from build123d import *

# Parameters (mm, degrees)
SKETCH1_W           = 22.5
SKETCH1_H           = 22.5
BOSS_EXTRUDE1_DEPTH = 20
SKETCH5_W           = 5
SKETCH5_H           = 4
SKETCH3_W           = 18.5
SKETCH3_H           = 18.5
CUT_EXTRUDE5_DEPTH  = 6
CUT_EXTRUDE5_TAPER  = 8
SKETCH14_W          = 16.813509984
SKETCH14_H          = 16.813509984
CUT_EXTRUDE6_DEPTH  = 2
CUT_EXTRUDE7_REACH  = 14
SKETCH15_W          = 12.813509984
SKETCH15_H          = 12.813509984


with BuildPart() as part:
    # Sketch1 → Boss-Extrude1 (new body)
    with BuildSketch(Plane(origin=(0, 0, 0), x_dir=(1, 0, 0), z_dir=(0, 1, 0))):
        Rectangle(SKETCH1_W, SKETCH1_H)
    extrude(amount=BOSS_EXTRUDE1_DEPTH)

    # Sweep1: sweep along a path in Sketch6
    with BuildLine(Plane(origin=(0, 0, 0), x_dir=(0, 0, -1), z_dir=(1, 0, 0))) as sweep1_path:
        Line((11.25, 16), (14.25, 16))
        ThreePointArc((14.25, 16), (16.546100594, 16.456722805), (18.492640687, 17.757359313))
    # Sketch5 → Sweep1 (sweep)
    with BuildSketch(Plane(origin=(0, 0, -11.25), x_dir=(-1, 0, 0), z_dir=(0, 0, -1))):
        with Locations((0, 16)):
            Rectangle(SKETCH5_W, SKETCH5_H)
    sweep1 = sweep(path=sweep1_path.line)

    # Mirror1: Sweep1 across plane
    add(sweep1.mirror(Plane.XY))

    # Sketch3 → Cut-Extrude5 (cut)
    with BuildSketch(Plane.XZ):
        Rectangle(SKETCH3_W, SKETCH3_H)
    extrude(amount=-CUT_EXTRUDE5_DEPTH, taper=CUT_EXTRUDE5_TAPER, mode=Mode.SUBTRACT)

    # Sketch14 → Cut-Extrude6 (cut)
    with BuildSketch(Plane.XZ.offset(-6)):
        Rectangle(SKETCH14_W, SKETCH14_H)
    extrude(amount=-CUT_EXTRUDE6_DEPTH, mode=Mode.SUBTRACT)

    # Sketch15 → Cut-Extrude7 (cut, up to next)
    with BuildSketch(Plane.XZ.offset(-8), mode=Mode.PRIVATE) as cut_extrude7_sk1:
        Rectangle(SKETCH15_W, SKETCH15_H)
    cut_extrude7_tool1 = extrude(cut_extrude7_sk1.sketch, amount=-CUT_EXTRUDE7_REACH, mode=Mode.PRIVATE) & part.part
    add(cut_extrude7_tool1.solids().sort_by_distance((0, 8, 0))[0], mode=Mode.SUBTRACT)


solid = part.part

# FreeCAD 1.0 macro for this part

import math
import FreeCAD as App
import Part
import Sketcher
from FreeCAD import Vector
Q = App.Units.Quantity


def add_polygon(sketch, points):
    """Adds a closed chain of lines whose ends are joined by coincident constraints."""
    first, n = sketch.GeometryCount, len(points)
    for a, b in zip(points, points[1:] + points[:1]):
        sketch.addGeometry(Part.LineSegment(App.Vector(*a, 0), App.Vector(*b, 0)), False)
    for i in range(n):
        sketch.addConstraint(Sketcher.Constraint("Coincident", first + i, 2, first + (i + 1) % n, 1))

doc = App.newDocument("Part")
body = doc.addObject("PartDesign::Body", "Body")

# Sketch on XZ plane
sketch1 = body.newObject("Sketcher::SketchObject", "Sketch")
sketch1.AttachmentSupport = (doc.getObject("XZ_Plane"), [""])
sketch1.MapMode = "FlatFace"
add_polygon(sketch1, [(-11.25, -11.25), (-11.25, 11.25), (11.25, 11.25), (11.25, -11.25)])  # lines 0-3
sketch1.addConstraint([
    Sketcher.Constraint("Vertical", 0),
    Sketcher.Constraint("Horizontal", 1),
    Sketcher.Constraint("Vertical", 2),
    Sketcher.Constraint("Horizontal", 3),
    Sketcher.Constraint("Symmetric", 0, 2, 2, 2, -1, 1),
    Sketcher.Constraint("Equal", 3, 0),
    Sketcher.Constraint("DistanceX", 1, 1, 1, 2, Q("22.5 mm")),
])
pad1 = body.newObject("PartDesign::Pad", "Pad")
pad1.Profile = sketch1
pad1.Length = 20
pad1.Reversed = True

# Sketch on XY plane
sketch2 = body.newObject("Sketcher::SketchObject", "Sketch001")
sketch2.AttachmentSupport = (doc.getObject("XY_Plane"), [""])
sketch2.MapMode = "FlatFace"
sketch2.AttachmentOffset = App.Placement(Vector(0, 0, -11.25), App.Rotation())
add_polygon(sketch2, [(2.5, 18), (2.5, 14), (-2.5, 14), (-2.5, 18)])  # lines 0-3
sketch2.addConstraint([
    Sketcher.Constraint("Vertical", 0),
    Sketcher.Constraint("Horizontal", 1),
    Sketcher.Constraint("Vertical", 2),
    Sketcher.Constraint("Horizontal", 3),
    Sketcher.Constraint("DistanceX", 1, 2, 1, 1, Q("5 mm")),
    Sketcher.Constraint("DistanceY", 0, 2, 0, 1, Q("4 mm")),
    Sketcher.Constraint("DistanceY", -1, 1, 0, 2, Q("14 mm")),
    Sketcher.Constraint("DistanceX", -1, 1, 0, 2, Q("2.5 mm")),
])

# Sketch on YZ plane
sketch3 = body.newObject("Sketcher::SketchObject", "Sketch002")
sketch3.AttachmentSupport = (doc.getObject("YZ_Plane"), [""])
sketch3.MapMode = "FlatFace"
sketch3.addGeometry([
    Part.LineSegment(Vector(16, -11.25, 0), Vector(16, -14.25, 0)),
    Part.ArcOfCircle(Part.Circle(Vector(22, -14.25, 0), Vector(0, 0, 1), 6), math.radians(180), math.radians(225)),
], False)
sketch3.addConstraint([
    Sketcher.Constraint("Tangent", 0, 2, 1, 1),
    Sketcher.Constraint("Vertical", 0),
    Sketcher.Constraint("Radius", 1, Q("6 mm")),
    Sketcher.Constraint("DistanceY", 0, 2, 0, 1, Q("3 mm")),
    Sketcher.Constraint("DistanceX", -1, 1, 1, 3, Q("22 mm")),
    Sketcher.Constraint("DistanceY", 1, 3, -1, 1, Q("14.25 mm")),
    Sketcher.Constraint("DistanceX", -1, 1, 1, 2, Q("17.757359 mm")),
])
doc.recompute()

additivepipe = body.newObject("PartDesign::AdditivePipe", "AdditivePipe")
additivepipe.Profile = sketch2
additivepipe.Spine = (sketch3, ["Edge1", "Edge2"])
doc.recompute()

mirrored = body.newObject("PartDesign::Mirrored", "Mirrored")
mirrored.Originals = [additivepipe]
mirrored.MirrorPlane = (doc.getObject("XY_Plane"), [""])
body.Tip = mirrored

# Sketch on XZ plane
sketch4 = body.newObject("Sketcher::SketchObject", "Sketch003")
sketch4.AttachmentSupport = (doc.getObject("XZ_Plane"), [""])
sketch4.MapMode = "FlatFace"
add_polygon(sketch4, [(-9.25, 9.25), (-9.25, -9.25), (9.25, -9.25), (9.25, 9.25)])  # lines 0-3
sketch4.addConstraint([
    Sketcher.Constraint("Vertical", 0),
    Sketcher.Constraint("Horizontal", 1),
    Sketcher.Constraint("Vertical", 2),
    Sketcher.Constraint("Horizontal", 3),
    Sketcher.Constraint("Symmetric", 0, 2, 2, 2, -1, 1),
    Sketcher.Constraint("Equal", 3, 0),
    Sketcher.Constraint("DistanceX", 1, 1, 1, 2, Q("18.5 mm")),
])
pocket1 = body.newObject("PartDesign::Pocket", "Pocket")
pocket1.Profile = sketch4
pocket1.Length = 6
pocket1.TaperAngle = -8

# Sketch on XZ plane
sketch5 = body.newObject("Sketcher::SketchObject", "Sketch004")
sketch5.AttachmentSupport = (doc.getObject("XZ_Plane"), [""])
sketch5.MapMode = "FlatFace"
sketch5.AttachmentOffset = App.Placement(Vector(0, 0, -6), App.Rotation())
add_polygon(sketch5, [(-8.406755, 8.406755), (-8.406755, -8.406755), (8.406755, -8.406755), (8.406755, 8.406755)])  # lines 0-3
sketch5.addConstraint([
    Sketcher.Constraint("Vertical", 0),
    Sketcher.Constraint("Horizontal", 1),
    Sketcher.Constraint("Vertical", 2),
    Sketcher.Constraint("Horizontal", 3),
    Sketcher.Constraint("Symmetric", 0, 2, 2, 2, -1, 1),
    Sketcher.Constraint("Equal", 3, 0),
    Sketcher.Constraint("DistanceX", 1, 1, 1, 2, Q("16.81351 mm")),
])
pocket2 = body.newObject("PartDesign::Pocket", "Pocket001")
pocket2.Profile = sketch5
pocket2.Length = 2

# Sketch on XZ plane
sketch6 = body.newObject("Sketcher::SketchObject", "Sketch005")
sketch6.AttachmentSupport = (doc.getObject("XZ_Plane"), [""])
sketch6.MapMode = "FlatFace"
sketch6.AttachmentOffset = App.Placement(Vector(0, 0, -8), App.Rotation())
add_polygon(sketch6, [(-6.406755, 6.406755), (-6.406755, -6.406755), (6.406755, -6.406755), (6.406755, 6.406755)])  # lines 0-3
sketch6.addConstraint([
    Sketcher.Constraint("Vertical", 0),
    Sketcher.Constraint("Horizontal", 1),
    Sketcher.Constraint("Vertical", 2),
    Sketcher.Constraint("Horizontal", 3),
    Sketcher.Constraint("Symmetric", 0, 2, 2, 2, -1, 1),
    Sketcher.Constraint("Equal", 3, 0),
    Sketcher.Constraint("DistanceX", 1, 1, 1, 2, Q("12.81351 mm")),
])
pocket3 = body.newObject("PartDesign::Pocket", "Pocket002")
pocket3.Profile = sketch6
pocket3.Type = "UpToFirst"

doc.recompute()
